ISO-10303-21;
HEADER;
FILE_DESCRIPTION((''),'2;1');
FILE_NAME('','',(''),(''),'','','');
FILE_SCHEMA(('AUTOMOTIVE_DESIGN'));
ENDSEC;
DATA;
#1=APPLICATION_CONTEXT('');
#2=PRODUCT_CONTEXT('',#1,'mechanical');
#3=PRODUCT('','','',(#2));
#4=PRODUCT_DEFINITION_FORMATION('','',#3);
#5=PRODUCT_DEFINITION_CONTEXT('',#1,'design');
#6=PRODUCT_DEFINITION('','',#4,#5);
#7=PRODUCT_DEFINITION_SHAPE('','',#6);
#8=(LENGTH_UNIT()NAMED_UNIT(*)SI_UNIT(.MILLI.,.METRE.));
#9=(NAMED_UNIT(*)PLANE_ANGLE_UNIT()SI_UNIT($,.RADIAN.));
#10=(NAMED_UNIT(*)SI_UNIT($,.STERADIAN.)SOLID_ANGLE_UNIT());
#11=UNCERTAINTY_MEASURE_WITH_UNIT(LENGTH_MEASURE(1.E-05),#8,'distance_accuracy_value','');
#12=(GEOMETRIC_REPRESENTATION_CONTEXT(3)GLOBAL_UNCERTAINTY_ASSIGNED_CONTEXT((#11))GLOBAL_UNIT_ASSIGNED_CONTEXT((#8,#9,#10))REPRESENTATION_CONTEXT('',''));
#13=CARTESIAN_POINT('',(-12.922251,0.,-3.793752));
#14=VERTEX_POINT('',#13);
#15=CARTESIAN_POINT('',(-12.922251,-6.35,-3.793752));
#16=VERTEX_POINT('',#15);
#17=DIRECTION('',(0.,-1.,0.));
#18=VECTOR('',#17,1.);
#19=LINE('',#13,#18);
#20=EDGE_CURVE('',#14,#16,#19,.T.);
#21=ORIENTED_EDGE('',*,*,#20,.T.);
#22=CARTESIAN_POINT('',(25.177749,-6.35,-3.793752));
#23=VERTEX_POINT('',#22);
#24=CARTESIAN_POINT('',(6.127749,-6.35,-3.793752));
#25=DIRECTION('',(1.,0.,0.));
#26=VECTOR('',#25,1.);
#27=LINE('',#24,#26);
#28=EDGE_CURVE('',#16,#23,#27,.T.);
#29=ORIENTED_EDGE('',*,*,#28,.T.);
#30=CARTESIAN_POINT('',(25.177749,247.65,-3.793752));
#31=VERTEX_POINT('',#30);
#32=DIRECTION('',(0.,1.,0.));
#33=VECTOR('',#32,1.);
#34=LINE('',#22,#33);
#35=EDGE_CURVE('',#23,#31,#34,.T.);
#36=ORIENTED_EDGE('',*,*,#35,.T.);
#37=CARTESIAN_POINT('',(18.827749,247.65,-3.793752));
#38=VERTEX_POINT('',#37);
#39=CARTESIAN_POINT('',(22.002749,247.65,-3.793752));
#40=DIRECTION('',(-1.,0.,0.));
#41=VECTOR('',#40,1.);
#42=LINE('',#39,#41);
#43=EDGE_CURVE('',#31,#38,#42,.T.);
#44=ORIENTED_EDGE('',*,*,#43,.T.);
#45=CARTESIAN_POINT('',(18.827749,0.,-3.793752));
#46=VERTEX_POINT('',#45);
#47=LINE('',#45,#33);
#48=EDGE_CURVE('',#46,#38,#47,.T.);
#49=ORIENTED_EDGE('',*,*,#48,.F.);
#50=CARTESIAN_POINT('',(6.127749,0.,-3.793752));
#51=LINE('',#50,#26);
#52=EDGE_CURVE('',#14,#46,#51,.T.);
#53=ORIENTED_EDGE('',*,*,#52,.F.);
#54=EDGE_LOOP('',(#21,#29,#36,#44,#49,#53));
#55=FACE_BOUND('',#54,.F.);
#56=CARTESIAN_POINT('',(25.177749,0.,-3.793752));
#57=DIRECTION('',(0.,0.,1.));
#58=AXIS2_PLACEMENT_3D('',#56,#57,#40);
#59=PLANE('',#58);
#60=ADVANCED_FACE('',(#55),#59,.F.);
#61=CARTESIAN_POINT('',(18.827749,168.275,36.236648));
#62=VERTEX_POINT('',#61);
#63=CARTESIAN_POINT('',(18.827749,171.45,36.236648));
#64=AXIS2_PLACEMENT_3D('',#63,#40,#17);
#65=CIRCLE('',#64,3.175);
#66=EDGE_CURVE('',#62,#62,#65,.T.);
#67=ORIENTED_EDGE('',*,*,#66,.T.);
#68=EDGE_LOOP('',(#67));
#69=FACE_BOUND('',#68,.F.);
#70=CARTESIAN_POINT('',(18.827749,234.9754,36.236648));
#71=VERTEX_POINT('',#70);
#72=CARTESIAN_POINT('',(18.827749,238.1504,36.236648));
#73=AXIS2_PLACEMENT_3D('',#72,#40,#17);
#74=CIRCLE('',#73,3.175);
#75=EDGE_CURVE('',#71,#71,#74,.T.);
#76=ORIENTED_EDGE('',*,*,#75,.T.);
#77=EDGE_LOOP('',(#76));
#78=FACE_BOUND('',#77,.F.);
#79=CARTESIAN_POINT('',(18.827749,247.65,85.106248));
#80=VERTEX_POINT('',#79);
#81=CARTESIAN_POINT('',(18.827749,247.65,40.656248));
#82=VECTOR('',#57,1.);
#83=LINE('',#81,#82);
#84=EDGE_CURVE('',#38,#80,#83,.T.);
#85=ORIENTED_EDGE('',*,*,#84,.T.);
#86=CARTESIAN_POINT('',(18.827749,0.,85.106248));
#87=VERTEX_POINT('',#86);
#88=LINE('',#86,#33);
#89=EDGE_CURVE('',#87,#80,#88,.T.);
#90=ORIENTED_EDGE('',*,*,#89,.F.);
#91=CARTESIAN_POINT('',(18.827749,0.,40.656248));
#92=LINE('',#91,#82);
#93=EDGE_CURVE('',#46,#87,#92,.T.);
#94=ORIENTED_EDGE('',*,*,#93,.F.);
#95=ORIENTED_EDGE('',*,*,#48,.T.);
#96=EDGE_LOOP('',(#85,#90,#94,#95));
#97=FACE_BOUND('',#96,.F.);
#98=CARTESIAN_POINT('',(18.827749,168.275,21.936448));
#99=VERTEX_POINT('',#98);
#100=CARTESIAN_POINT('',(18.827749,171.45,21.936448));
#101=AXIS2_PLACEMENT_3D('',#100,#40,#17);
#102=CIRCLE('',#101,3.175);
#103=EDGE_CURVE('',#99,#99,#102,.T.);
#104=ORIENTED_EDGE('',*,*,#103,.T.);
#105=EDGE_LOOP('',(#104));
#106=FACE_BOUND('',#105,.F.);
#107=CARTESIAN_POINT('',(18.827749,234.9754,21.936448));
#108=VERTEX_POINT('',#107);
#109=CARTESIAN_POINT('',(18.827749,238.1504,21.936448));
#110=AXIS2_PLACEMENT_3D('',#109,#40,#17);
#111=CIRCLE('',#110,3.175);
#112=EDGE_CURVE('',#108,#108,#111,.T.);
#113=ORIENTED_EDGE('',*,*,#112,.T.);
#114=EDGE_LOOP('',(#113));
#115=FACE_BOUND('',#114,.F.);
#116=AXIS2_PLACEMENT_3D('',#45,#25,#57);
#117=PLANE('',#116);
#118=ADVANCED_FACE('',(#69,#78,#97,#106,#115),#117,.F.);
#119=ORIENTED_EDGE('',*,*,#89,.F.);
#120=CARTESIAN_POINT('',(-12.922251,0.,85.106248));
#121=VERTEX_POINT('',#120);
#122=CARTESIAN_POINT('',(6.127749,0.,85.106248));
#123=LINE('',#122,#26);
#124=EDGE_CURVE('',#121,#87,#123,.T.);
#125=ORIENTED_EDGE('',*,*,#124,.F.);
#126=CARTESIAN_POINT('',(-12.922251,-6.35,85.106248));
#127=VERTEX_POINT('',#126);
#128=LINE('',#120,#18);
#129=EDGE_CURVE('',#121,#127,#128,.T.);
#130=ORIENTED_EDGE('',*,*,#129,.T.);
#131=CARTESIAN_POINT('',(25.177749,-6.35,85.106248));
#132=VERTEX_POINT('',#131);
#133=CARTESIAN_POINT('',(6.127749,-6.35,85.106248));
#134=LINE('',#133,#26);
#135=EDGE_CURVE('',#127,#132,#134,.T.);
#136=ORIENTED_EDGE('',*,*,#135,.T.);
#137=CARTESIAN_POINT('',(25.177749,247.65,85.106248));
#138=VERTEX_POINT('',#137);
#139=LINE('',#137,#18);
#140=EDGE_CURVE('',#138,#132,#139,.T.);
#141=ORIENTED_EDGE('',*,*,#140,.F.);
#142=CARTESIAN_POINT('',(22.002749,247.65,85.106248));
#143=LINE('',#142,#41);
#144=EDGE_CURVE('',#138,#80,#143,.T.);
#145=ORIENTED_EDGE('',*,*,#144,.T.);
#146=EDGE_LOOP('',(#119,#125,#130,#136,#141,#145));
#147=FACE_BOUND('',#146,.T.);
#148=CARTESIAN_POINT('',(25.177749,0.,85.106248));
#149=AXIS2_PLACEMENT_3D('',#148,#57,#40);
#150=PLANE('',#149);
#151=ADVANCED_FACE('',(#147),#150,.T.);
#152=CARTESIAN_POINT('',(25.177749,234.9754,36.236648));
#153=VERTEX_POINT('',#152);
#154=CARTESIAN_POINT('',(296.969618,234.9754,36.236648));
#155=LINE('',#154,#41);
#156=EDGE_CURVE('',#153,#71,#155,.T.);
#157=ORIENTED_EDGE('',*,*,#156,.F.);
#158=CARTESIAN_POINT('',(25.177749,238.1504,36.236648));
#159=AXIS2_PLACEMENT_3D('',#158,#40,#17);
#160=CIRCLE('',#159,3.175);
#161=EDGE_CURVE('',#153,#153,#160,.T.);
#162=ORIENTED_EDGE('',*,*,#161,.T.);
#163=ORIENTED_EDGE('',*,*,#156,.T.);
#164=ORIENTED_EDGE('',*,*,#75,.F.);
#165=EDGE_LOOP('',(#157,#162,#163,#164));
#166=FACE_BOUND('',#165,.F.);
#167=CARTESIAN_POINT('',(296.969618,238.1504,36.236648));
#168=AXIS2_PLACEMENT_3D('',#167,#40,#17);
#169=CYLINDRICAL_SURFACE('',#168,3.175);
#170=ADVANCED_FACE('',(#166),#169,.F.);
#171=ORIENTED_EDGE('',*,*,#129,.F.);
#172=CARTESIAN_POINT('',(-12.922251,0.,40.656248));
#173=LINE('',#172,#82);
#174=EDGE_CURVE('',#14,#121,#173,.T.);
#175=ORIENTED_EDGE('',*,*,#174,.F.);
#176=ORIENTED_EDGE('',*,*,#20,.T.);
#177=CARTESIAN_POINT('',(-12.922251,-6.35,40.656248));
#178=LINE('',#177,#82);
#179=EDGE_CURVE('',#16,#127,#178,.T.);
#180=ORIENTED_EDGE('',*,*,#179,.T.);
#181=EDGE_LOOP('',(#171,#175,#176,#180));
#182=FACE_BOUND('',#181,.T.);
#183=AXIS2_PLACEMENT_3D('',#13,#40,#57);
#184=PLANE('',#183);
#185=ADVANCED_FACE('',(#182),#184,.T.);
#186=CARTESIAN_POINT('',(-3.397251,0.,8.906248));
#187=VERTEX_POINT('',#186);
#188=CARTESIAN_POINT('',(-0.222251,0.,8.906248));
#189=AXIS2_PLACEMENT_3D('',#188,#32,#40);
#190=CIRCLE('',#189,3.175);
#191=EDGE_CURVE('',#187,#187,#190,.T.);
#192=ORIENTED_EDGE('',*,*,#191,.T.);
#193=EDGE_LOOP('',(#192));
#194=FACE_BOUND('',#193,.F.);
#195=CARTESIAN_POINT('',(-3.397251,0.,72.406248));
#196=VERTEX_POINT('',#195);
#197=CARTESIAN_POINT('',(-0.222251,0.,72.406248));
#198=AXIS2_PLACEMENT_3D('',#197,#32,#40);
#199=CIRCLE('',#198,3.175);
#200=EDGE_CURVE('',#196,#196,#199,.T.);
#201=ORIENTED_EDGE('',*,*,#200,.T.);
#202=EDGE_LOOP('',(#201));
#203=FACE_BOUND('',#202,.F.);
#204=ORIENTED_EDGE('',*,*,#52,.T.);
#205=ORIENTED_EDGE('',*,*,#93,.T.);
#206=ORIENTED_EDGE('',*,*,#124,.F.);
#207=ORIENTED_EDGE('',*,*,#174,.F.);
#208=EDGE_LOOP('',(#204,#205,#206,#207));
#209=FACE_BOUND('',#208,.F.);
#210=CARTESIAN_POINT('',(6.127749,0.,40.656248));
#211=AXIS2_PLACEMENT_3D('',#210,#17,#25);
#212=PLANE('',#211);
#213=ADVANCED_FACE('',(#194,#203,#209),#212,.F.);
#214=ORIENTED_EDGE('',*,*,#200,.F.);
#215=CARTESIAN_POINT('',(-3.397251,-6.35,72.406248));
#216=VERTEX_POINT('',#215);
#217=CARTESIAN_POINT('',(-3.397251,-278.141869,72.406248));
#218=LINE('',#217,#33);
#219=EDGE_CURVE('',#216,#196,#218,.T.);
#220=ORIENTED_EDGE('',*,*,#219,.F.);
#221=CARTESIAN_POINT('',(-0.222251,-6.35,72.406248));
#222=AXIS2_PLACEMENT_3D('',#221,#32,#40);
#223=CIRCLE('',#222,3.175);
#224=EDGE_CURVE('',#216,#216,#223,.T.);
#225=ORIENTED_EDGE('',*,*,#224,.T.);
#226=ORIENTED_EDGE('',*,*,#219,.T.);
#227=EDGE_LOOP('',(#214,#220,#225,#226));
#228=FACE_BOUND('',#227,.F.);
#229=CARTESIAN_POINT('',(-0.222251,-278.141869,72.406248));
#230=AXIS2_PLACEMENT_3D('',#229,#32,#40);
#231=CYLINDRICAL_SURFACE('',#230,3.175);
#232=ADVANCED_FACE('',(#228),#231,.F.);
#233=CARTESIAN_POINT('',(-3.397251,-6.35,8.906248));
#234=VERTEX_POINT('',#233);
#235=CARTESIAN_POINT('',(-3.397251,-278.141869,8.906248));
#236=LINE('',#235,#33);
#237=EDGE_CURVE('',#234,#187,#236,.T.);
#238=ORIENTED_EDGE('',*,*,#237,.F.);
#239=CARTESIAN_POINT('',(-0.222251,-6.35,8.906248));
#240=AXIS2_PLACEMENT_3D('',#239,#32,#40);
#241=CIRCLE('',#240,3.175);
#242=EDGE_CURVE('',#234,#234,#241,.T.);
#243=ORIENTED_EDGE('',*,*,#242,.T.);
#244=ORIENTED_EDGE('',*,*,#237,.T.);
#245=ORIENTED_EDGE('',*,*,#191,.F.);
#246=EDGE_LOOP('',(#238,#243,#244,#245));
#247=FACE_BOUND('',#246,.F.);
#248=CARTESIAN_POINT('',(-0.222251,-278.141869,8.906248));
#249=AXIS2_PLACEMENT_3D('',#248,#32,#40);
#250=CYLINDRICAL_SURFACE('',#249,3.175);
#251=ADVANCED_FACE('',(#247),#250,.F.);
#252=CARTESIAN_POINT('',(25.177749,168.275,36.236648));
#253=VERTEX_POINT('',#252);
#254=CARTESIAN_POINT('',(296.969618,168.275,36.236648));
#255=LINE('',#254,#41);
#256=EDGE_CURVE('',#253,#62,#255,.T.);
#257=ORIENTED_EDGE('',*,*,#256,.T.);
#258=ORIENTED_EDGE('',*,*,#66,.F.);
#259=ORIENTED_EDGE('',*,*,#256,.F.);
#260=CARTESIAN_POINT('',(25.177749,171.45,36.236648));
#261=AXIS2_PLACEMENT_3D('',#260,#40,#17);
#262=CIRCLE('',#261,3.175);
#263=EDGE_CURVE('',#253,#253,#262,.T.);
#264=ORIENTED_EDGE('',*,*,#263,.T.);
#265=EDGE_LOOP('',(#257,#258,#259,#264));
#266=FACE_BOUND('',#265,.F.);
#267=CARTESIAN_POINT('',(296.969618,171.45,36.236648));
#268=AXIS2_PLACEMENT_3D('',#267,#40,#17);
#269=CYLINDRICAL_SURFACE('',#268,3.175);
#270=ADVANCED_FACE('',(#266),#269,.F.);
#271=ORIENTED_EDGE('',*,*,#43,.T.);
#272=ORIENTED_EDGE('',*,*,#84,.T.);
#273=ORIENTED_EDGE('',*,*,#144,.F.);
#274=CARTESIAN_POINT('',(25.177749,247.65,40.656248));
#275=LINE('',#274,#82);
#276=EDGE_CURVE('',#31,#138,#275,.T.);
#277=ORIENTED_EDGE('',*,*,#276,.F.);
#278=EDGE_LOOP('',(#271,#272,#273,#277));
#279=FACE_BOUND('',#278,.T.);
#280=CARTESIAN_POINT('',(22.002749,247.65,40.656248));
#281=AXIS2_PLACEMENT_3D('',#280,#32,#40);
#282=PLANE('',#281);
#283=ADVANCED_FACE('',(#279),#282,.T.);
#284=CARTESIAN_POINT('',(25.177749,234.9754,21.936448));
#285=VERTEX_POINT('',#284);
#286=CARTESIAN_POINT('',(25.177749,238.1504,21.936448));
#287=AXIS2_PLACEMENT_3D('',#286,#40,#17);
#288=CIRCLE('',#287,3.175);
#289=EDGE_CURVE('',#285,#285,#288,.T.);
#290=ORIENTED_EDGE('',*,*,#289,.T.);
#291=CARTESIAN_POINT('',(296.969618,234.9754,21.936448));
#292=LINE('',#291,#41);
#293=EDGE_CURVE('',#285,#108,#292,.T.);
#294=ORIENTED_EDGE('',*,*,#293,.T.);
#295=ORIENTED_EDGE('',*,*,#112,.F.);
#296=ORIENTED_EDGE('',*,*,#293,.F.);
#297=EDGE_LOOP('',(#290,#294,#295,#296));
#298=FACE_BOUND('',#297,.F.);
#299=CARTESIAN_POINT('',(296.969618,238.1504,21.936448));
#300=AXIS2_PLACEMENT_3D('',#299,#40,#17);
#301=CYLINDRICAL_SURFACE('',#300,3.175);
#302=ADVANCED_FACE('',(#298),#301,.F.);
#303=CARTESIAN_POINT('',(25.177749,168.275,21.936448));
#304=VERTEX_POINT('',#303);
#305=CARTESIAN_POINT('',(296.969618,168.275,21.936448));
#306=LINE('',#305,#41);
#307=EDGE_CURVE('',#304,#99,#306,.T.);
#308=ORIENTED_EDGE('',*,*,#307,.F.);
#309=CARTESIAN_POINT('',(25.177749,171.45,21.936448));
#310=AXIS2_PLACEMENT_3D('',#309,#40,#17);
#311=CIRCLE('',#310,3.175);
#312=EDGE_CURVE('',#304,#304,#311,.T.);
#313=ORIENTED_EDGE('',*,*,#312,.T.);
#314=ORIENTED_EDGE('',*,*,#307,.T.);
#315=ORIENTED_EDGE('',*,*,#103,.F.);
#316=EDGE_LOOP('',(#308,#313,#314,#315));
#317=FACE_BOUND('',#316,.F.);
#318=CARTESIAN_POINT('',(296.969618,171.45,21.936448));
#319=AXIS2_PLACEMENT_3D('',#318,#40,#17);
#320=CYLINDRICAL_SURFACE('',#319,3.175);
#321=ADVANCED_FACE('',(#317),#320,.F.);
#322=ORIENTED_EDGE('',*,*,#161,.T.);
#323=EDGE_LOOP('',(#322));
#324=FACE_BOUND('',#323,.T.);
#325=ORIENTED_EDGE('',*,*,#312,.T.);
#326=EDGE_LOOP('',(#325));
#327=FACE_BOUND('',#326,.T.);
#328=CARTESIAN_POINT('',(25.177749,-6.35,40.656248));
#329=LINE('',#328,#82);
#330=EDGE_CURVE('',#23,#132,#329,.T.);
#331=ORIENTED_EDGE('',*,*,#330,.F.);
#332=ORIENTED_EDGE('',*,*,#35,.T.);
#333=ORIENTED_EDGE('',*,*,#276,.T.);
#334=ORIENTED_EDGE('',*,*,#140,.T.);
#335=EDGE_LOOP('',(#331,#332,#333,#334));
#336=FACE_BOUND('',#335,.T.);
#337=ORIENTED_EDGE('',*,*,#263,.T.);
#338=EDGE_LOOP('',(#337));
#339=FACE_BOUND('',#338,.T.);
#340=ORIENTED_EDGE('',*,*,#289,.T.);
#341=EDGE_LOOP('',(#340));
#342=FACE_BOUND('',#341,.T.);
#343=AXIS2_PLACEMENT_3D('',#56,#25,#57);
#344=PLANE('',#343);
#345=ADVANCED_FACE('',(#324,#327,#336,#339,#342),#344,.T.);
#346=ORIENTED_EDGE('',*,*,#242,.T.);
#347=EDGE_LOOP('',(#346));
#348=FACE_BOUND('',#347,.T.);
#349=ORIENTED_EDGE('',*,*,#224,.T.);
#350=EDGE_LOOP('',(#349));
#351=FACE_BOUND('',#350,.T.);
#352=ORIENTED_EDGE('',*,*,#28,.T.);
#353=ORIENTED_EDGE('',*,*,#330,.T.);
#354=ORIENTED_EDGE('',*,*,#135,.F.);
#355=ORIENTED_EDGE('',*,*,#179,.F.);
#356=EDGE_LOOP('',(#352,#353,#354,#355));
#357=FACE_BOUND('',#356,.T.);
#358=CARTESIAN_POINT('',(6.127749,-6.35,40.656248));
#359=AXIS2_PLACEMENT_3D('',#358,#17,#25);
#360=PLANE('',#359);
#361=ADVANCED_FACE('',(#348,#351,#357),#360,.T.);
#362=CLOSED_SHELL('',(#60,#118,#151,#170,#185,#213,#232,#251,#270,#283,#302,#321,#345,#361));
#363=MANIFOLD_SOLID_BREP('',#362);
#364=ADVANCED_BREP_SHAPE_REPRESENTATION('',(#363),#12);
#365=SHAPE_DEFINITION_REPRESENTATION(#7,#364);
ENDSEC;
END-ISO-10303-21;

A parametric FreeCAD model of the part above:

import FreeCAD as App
import Part
import Sketcher

V = App.Vector
Q = App.Units.Quantity

doc = App.newDocument("Part")
body = doc.addObject("PartDesign::Body", "Body")

sketch1 = doc.addObject("Sketcher::SketchObject", "Sketch")
body.addObject(sketch1)
sketch1.AttachmentSupport = (doc.XZ_Plane, [""])
sketch1.MapMode = "FlatFace"
sketch1.addGeometry([
    Part.LineSegment(V(-12.922251, 85.106248, 0), V(-12.922251, -3.793752, 0)),
    Part.LineSegment(V(-12.922251, -3.793752, 0), V(25.177749, -3.793752, 0)),
    Part.LineSegment(V(25.177749, -3.793752, 0), V(25.177749, 85.106248, 0)),
    Part.LineSegment(V(25.177749, 85.106248, 0), V(-12.922251, 85.106248, 0)),
], False)
sketch1.addConstraint([
    Sketcher.Constraint("Coincident", 0, 2, 1, 1),
    Sketcher.Constraint("Coincident", 1, 2, 2, 1),
    Sketcher.Constraint("Coincident", 2, 2, 3, 1),
    Sketcher.Constraint("Coincident", 3, 2, 0, 1),
    Sketcher.Constraint("Vertical", 0),
    Sketcher.Constraint("Horizontal", 1),
    Sketcher.Constraint("Vertical", 2),
    Sketcher.Constraint("Horizontal", 3),
    Sketcher.Constraint("DistanceX", 1, 1, 1, 2, Q("1.5 in")),
    Sketcher.Constraint("DistanceY", 0, 2, 0, 1, Q("3.5 in")),
    Sketcher.Constraint("DistanceX", 0, 2, -1, 1, 12.922251),
    Sketcher.Constraint("DistanceY", 0, 2, -1, 1, 3.793752),
])
pad1 = doc.addObject("PartDesign::Pad", "Pad")
body.addObject(pad1)
pad1.Profile = sketch1
pad1.Length = Q("0.25 in")

sketch2 = doc.addObject("Sketcher::SketchObject", "Sketch001")
body.addObject(sketch2)
sketch2.AttachmentSupport = (doc.XZ_Plane, [""])
sketch2.MapMode = "FlatFace"
sketch2.addGeometry([
    Part.LineSegment(V(25.177749, 85.106248, 0), V(25.177749, -3.793752, 0)),
    Part.LineSegment(V(25.177749, -3.793752, 0), V(18.827749, -3.793752, 0)),
    Part.LineSegment(V(18.827749, -3.793752, 0), V(18.827749, 85.106248, 0)),
    Part.LineSegment(V(18.827749, 85.106248, 0), V(25.177749, 85.106248, 0)),
], False)
sketch2.addConstraint([
    Sketcher.Constraint("Coincident", 0, 2, 1, 1),
    Sketcher.Constraint("Coincident", 1, 2, 2, 1),
    Sketcher.Constraint("Coincident", 2, 2, 3, 1),
    Sketcher.Constraint("Coincident", 3, 2, 0, 1),
    Sketcher.Constraint("Vertical", 0),
    Sketcher.Constraint("Horizontal", 1),
    Sketcher.Constraint("Vertical", 2),
    Sketcher.Constraint("Horizontal", 3),
    Sketcher.Constraint("DistanceY", 0, 2, 0, 1, Q("3.5 in")),
    Sketcher.Constraint("DistanceX", 1, 2, 1, 1, Q("0.25 in")),
    Sketcher.Constraint("DistanceX", -1, 1, 0, 2, 25.177749),
    Sketcher.Constraint("DistanceY", 0, 2, -1, 1, 3.793752),
])
pad2 = doc.addObject("PartDesign::Pad", "Pad001")
body.addObject(pad2)
pad2.Profile = sketch2
pad2.Length = Q("9.75 in")
pad2.Reversed = True

sketch3 = doc.addObject("Sketcher::SketchObject", "Sketch002")
body.addObject(sketch3)
sketch3.AttachmentSupport = (doc.XZ_Plane, [""])
sketch3.MapMode = "FlatFace"
sketch3.AttachmentOffset = App.Placement(V(0, 0, 0.25 * 25.4), App.Rotation())
sketch3.addGeometry([
    Part.Circle(V(-0.222251, 72.406248, 0), V(0, 0, 1), 3.175),
    Part.Circle(V(-0.222251, 8.906248, 0), V(0, 0, 1), 3.175),
], False)
sketch3.addConstraint([
    Sketcher.Constraint("Equal", 0, 1),
    Sketcher.Constraint("Vertical", 0, 3, 1, 3),
    Sketcher.Constraint("Diameter", 0, Q("0.25 in")),
    Sketcher.Constraint("DistanceY", 1, 3, 0, 3, Q("2.5 in")),
    Sketcher.Constraint("DistanceX", 0, 3, -1, 1, 0.222251),
    Sketcher.Constraint("DistanceY", -1, 1, 0, 3, 72.406248),
])
doc.recompute()
hole = doc.addObject("PartDesign::Hole", "Hole")
body.addObject(hole)
hole.Profile = sketch3
hole.ThreadType = "None"
hole.Diameter = Q("0.25 in")
hole.DepthType = "ThroughAll"

sketch4 = doc.addObject("Sketcher::SketchObject", "Sketch003")
body.addObject(sketch4)
sketch4.AttachmentSupport = (doc.YZ_Plane, [""])
sketch4.MapMode = "FlatFace"
sketch4.AttachmentOffset = App.Placement(V(0, 0, 25.177749), App.Rotation())
sketch4.addGeometry([
    Part.Circle(V(171.45, 36.236648, 0), V(0, 0, 1), 3.175),
    Part.Circle(V(171.45, 21.936448, 0), V(0, 0, 1), 3.175),
    Part.Circle(V(238.1504, 21.936448, 0), V(0, 0, 1), 3.175),
    Part.Circle(V(238.1504, 36.236648, 0), V(0, 0, 1), 3.175),
], False)
sketch4.addConstraint([
    Sketcher.Constraint("Equal", 0, 1),
    Sketcher.Constraint("Equal", 1, 2),
    Sketcher.Constraint("Equal", 2, 3),
    Sketcher.Constraint("Horizontal", 1, 3, 2, 3),
    Sketcher.Constraint("Horizontal", 0, 3, 3, 3),
    Sketcher.Constraint("Vertical", 0, 3, 1, 3),
    Sketcher.Constraint("Vertical", 2, 3, 3, 3),
    Sketcher.Constraint("Diameter", 0, Q("0.25 in")),
    Sketcher.Constraint("DistanceX", -1, 1, 0, 3, Q("6.75 in")),
    Sketcher.Constraint("DistanceX", -1, 1, 2, 3, Q("9.376 in")),
    Sketcher.Constraint("DistanceY", 1, 3, 0, 3, Q("0.563 in")),
    Sketcher.Constraint("DistanceY", -1, 1, 0, 3, 36.236648),
])
doc.recompute()
hole2 = doc.addObject("PartDesign::Hole", "Hole001")
body.addObject(hole2)
hole2.Profile = sketch4
hole2.ThreadType = "None"
hole2.Diameter = Q("0.25 in")
hole2.DepthType = "ThroughAll"

doc.recompute()
